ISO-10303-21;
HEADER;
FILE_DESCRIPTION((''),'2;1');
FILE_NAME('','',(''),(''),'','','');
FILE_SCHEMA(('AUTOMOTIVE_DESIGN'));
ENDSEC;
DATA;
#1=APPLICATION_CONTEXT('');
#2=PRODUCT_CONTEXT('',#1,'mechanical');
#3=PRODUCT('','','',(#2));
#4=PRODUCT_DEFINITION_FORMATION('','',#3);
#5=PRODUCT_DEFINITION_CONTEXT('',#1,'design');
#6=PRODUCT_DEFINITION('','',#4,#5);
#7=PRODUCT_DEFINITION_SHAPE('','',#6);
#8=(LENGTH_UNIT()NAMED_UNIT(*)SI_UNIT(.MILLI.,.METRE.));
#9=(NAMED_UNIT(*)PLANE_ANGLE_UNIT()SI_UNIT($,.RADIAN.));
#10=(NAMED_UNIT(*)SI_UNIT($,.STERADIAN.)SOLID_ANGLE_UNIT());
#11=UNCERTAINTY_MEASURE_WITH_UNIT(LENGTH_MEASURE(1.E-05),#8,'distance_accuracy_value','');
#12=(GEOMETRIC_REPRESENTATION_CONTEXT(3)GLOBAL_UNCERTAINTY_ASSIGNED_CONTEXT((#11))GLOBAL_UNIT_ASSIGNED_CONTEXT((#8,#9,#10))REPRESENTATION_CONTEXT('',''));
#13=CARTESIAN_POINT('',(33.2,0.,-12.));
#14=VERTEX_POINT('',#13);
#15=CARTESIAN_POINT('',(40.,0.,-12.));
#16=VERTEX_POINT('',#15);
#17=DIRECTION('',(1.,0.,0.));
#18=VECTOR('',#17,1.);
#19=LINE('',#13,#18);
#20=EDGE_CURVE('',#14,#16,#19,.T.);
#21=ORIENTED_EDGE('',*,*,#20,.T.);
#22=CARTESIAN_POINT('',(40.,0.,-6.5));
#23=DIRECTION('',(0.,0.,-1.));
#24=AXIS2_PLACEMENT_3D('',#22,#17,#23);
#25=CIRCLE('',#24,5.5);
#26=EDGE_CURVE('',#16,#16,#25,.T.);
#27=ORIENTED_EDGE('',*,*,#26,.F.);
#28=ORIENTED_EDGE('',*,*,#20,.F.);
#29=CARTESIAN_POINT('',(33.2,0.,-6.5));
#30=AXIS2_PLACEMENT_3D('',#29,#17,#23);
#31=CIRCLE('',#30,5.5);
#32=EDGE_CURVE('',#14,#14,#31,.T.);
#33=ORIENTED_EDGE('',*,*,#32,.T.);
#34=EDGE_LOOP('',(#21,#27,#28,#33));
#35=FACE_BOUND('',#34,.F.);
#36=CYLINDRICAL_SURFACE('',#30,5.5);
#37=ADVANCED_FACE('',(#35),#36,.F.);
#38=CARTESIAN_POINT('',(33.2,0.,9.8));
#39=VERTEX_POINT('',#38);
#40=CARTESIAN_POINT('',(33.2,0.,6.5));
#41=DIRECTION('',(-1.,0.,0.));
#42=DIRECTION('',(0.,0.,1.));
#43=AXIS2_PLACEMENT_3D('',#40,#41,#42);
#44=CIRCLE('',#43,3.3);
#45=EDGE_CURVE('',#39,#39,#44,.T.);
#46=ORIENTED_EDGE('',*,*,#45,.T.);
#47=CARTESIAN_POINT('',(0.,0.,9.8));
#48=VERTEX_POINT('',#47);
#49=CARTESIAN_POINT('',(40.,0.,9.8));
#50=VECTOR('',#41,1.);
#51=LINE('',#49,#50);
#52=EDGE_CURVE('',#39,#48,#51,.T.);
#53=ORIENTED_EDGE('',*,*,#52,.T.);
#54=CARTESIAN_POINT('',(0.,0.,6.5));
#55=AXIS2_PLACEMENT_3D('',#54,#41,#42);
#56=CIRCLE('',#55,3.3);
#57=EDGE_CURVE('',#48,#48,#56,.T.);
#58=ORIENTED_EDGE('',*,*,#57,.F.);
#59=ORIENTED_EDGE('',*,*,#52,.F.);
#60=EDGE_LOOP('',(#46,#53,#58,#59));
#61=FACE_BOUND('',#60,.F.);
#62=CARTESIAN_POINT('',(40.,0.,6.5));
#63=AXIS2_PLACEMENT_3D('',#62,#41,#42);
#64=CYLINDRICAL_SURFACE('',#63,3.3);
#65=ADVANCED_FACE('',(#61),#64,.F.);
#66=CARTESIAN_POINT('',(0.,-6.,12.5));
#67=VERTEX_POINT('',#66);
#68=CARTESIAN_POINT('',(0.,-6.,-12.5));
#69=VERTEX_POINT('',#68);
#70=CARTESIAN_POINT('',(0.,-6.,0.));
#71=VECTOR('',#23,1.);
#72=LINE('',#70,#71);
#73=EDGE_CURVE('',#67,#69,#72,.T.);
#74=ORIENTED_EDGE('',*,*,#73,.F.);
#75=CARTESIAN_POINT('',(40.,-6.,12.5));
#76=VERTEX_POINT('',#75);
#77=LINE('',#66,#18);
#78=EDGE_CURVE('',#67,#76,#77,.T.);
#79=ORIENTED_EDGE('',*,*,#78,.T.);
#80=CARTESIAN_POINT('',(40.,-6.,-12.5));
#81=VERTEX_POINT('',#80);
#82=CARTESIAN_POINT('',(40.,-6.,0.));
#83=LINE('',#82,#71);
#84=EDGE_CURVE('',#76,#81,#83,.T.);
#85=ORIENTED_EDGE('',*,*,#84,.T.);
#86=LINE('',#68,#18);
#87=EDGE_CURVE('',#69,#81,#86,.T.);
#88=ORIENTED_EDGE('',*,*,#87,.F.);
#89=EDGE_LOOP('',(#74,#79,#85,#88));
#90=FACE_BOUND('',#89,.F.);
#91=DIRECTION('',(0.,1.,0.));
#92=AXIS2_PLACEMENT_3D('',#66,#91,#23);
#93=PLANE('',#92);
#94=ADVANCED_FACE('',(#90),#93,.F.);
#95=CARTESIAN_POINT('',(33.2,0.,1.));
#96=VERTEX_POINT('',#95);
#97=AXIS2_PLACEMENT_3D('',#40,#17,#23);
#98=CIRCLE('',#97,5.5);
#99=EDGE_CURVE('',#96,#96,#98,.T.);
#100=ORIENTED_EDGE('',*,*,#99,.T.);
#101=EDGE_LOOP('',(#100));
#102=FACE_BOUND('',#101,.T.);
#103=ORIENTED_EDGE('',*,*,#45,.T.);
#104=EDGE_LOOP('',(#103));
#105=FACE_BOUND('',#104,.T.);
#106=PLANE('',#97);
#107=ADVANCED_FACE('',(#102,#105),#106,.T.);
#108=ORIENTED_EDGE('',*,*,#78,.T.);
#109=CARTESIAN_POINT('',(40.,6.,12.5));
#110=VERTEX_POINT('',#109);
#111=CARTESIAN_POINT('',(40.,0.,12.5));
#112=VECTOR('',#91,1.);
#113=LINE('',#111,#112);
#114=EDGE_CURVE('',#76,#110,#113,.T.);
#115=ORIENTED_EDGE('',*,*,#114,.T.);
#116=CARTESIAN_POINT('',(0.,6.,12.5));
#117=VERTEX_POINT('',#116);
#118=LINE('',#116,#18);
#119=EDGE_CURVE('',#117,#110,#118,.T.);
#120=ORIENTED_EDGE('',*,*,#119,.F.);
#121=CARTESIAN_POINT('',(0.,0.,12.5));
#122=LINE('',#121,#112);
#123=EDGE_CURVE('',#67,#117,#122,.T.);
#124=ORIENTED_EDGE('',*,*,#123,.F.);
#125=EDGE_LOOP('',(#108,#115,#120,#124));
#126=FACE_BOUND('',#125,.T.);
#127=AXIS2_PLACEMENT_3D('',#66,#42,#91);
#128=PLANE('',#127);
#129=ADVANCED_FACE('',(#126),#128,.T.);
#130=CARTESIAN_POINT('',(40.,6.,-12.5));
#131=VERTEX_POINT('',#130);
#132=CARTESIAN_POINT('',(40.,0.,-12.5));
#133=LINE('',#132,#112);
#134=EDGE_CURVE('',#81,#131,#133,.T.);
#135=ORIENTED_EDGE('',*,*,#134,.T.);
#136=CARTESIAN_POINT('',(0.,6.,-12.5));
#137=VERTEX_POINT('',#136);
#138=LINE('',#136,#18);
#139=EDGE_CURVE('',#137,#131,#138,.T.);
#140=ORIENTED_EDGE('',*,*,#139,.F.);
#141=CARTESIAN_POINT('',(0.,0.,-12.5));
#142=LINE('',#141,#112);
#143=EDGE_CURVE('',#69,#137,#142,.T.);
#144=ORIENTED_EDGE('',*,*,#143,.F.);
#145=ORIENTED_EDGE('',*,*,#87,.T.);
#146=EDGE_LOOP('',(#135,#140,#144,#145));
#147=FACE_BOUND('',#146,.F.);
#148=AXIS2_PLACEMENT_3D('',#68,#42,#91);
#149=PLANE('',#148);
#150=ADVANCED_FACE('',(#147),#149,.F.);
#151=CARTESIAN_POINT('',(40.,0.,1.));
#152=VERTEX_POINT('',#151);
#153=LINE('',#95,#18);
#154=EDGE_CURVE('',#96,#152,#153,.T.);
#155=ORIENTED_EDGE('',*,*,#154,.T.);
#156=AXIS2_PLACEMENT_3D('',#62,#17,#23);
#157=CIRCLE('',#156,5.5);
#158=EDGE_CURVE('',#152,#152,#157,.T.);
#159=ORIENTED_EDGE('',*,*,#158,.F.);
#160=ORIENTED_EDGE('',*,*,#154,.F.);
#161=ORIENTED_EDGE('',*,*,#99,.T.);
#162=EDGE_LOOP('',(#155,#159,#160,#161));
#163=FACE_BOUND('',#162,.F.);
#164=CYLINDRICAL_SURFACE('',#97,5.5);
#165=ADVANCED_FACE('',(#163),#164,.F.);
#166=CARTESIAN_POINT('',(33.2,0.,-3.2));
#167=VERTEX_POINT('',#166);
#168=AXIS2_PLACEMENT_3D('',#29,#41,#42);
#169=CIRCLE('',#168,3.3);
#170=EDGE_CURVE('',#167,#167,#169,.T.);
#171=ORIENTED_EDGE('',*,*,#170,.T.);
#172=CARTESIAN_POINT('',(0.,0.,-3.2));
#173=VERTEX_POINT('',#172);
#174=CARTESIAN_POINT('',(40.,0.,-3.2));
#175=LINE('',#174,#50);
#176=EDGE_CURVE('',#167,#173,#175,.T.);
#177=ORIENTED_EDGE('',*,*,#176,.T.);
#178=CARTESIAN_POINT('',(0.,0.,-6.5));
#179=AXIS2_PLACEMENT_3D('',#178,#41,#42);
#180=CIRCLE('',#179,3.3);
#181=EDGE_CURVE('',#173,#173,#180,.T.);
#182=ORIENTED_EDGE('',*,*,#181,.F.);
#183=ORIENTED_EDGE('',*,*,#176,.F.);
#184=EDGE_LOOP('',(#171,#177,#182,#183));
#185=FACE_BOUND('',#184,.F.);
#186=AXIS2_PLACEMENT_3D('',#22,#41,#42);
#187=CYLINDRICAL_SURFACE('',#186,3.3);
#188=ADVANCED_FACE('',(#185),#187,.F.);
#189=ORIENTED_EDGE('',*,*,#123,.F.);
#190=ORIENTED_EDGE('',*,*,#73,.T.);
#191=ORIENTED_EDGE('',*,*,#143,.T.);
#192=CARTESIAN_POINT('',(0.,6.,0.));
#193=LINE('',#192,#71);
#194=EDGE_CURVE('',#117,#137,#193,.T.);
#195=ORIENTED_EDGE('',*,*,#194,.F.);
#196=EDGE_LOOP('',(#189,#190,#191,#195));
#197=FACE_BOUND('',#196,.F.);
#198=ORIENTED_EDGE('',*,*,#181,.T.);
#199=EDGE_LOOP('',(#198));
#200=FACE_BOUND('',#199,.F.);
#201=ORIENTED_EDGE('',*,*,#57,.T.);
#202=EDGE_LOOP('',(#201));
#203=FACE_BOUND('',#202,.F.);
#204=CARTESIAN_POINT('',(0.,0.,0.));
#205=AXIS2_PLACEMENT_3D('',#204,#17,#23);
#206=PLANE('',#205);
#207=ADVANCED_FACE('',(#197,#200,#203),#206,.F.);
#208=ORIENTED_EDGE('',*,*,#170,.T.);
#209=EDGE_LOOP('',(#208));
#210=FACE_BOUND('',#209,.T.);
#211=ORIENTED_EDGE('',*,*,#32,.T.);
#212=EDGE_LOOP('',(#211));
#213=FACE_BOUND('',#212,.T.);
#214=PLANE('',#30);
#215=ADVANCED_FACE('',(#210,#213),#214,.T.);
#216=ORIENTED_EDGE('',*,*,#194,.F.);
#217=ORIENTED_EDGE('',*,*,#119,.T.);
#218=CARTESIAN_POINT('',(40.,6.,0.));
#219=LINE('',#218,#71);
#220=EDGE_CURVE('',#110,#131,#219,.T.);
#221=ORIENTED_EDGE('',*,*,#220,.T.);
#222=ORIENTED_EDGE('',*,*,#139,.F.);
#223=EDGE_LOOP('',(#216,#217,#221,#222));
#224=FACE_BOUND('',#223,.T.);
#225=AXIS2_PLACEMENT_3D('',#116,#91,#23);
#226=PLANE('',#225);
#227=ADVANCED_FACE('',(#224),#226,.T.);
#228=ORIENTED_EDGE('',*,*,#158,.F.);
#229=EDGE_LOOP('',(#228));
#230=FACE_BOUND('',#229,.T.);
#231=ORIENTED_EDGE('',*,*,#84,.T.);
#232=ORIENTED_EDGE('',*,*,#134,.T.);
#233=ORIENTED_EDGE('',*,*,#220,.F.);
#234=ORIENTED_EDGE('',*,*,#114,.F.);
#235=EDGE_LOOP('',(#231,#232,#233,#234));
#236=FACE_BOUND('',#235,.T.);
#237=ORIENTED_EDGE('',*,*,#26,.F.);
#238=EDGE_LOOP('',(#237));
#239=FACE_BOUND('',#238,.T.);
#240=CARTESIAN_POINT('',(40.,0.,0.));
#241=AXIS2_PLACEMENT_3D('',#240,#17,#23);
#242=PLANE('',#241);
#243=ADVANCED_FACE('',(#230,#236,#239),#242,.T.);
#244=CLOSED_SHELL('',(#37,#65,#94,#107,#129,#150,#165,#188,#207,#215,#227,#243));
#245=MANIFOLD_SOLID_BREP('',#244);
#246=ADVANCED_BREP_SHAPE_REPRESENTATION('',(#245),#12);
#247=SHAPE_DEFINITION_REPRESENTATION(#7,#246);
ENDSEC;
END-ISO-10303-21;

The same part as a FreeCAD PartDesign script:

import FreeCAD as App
import Part
import Sketcher

V = App.Vector
Q = App.Units.Quantity


def add_polygon(sketch, points):
    """Adds a closed chain of lines whose ends are joined by coincident constraints."""
    first, n = sketch.GeometryCount, len(points)
    for a, b in zip(points, points[1:] + points[:1]):
        sketch.addGeometry(Part.LineSegment(App.Vector(*a, 0), App.Vector(*b, 0)), False)
    for i in range(n):
        sketch.addConstraint(Sketcher.Constraint("Coincident", first + i, 2, first + (i + 1) % n, 1))

doc = App.newDocument("Part")
body = doc.addObject("PartDesign::Body", "Body")

# Sketch on YZ plane
sketch1 = body.newObject("Sketcher::SketchObject", "Sketch")
sketch1.AttachmentSupport = (doc.getObject("YZ_Plane"), [""])
sketch1.MapMode = "FlatFace"
add_polygon(sketch1, [(6, 12), (-6, 12), (-6, -12), (6, -12)])  # lines 0-3
sketch1.addConstraint([
    Sketcher.Constraint("Horizontal", 0),
    Sketcher.Constraint("Vertical", 1),
    Sketcher.Constraint("Horizontal", 2),
    Sketcher.Constraint("Vertical", 3),
    Sketcher.Constraint("Symmetric", 0, 2, 2, 2, -1, 1),
    Sketcher.Constraint("DistanceX", 0, 2, 0, 1, Q("12 mm")),
    Sketcher.Constraint("DistanceY", 1, 2, 1, 1, Q("25 mm")),
])
pad1 = body.newObject("PartDesign::Pad", "Pad")
pad1.Profile = sketch1
pad1.Length = 40

# Sketch on YZ plane
sketch2 = body.newObject("Sketcher::SketchObject", "Sketch001")
sketch2.AttachmentSupport = (doc.getObject("YZ_Plane"), [""])
sketch2.MapMode = "FlatFace"
sketch2.AttachmentOffset = App.Placement(V(0, 0, 40), App.Rotation())
sketch2.addGeometry([
    Part.Circle(V(0, -6.5, 0), V(0, 0, 1), 3.3),
    Part.Circle(V(0, 6.5, 0), V(0, 0, 1), 3.3),
], False)
sketch2.addConstraint([
    Sketcher.Constraint("Equal", 0, 1),
    Sketcher.Constraint("Symmetric", 0, 3, 1, 3, -1, 1),
    Sketcher.Constraint("PointOnObject", 0, 3, -2),
    Sketcher.Constraint("Diameter", 0, Q("6.6 mm")),
    Sketcher.Constraint("DistanceY", 0, 3, 1, 3, Q("13 mm")),
])
doc.recompute()
hole = body.newObject("PartDesign::Hole", "Hole")
hole.Profile = sketch2
hole.ThreadType = "None"
hole.Diameter = 6.6
hole.DepthType = "ThroughAll"
hole.HoleCutType = "Counterbore"
hole.HoleCutDiameter = 11
hole.HoleCutDepth = 6.8

doc.recompute()
